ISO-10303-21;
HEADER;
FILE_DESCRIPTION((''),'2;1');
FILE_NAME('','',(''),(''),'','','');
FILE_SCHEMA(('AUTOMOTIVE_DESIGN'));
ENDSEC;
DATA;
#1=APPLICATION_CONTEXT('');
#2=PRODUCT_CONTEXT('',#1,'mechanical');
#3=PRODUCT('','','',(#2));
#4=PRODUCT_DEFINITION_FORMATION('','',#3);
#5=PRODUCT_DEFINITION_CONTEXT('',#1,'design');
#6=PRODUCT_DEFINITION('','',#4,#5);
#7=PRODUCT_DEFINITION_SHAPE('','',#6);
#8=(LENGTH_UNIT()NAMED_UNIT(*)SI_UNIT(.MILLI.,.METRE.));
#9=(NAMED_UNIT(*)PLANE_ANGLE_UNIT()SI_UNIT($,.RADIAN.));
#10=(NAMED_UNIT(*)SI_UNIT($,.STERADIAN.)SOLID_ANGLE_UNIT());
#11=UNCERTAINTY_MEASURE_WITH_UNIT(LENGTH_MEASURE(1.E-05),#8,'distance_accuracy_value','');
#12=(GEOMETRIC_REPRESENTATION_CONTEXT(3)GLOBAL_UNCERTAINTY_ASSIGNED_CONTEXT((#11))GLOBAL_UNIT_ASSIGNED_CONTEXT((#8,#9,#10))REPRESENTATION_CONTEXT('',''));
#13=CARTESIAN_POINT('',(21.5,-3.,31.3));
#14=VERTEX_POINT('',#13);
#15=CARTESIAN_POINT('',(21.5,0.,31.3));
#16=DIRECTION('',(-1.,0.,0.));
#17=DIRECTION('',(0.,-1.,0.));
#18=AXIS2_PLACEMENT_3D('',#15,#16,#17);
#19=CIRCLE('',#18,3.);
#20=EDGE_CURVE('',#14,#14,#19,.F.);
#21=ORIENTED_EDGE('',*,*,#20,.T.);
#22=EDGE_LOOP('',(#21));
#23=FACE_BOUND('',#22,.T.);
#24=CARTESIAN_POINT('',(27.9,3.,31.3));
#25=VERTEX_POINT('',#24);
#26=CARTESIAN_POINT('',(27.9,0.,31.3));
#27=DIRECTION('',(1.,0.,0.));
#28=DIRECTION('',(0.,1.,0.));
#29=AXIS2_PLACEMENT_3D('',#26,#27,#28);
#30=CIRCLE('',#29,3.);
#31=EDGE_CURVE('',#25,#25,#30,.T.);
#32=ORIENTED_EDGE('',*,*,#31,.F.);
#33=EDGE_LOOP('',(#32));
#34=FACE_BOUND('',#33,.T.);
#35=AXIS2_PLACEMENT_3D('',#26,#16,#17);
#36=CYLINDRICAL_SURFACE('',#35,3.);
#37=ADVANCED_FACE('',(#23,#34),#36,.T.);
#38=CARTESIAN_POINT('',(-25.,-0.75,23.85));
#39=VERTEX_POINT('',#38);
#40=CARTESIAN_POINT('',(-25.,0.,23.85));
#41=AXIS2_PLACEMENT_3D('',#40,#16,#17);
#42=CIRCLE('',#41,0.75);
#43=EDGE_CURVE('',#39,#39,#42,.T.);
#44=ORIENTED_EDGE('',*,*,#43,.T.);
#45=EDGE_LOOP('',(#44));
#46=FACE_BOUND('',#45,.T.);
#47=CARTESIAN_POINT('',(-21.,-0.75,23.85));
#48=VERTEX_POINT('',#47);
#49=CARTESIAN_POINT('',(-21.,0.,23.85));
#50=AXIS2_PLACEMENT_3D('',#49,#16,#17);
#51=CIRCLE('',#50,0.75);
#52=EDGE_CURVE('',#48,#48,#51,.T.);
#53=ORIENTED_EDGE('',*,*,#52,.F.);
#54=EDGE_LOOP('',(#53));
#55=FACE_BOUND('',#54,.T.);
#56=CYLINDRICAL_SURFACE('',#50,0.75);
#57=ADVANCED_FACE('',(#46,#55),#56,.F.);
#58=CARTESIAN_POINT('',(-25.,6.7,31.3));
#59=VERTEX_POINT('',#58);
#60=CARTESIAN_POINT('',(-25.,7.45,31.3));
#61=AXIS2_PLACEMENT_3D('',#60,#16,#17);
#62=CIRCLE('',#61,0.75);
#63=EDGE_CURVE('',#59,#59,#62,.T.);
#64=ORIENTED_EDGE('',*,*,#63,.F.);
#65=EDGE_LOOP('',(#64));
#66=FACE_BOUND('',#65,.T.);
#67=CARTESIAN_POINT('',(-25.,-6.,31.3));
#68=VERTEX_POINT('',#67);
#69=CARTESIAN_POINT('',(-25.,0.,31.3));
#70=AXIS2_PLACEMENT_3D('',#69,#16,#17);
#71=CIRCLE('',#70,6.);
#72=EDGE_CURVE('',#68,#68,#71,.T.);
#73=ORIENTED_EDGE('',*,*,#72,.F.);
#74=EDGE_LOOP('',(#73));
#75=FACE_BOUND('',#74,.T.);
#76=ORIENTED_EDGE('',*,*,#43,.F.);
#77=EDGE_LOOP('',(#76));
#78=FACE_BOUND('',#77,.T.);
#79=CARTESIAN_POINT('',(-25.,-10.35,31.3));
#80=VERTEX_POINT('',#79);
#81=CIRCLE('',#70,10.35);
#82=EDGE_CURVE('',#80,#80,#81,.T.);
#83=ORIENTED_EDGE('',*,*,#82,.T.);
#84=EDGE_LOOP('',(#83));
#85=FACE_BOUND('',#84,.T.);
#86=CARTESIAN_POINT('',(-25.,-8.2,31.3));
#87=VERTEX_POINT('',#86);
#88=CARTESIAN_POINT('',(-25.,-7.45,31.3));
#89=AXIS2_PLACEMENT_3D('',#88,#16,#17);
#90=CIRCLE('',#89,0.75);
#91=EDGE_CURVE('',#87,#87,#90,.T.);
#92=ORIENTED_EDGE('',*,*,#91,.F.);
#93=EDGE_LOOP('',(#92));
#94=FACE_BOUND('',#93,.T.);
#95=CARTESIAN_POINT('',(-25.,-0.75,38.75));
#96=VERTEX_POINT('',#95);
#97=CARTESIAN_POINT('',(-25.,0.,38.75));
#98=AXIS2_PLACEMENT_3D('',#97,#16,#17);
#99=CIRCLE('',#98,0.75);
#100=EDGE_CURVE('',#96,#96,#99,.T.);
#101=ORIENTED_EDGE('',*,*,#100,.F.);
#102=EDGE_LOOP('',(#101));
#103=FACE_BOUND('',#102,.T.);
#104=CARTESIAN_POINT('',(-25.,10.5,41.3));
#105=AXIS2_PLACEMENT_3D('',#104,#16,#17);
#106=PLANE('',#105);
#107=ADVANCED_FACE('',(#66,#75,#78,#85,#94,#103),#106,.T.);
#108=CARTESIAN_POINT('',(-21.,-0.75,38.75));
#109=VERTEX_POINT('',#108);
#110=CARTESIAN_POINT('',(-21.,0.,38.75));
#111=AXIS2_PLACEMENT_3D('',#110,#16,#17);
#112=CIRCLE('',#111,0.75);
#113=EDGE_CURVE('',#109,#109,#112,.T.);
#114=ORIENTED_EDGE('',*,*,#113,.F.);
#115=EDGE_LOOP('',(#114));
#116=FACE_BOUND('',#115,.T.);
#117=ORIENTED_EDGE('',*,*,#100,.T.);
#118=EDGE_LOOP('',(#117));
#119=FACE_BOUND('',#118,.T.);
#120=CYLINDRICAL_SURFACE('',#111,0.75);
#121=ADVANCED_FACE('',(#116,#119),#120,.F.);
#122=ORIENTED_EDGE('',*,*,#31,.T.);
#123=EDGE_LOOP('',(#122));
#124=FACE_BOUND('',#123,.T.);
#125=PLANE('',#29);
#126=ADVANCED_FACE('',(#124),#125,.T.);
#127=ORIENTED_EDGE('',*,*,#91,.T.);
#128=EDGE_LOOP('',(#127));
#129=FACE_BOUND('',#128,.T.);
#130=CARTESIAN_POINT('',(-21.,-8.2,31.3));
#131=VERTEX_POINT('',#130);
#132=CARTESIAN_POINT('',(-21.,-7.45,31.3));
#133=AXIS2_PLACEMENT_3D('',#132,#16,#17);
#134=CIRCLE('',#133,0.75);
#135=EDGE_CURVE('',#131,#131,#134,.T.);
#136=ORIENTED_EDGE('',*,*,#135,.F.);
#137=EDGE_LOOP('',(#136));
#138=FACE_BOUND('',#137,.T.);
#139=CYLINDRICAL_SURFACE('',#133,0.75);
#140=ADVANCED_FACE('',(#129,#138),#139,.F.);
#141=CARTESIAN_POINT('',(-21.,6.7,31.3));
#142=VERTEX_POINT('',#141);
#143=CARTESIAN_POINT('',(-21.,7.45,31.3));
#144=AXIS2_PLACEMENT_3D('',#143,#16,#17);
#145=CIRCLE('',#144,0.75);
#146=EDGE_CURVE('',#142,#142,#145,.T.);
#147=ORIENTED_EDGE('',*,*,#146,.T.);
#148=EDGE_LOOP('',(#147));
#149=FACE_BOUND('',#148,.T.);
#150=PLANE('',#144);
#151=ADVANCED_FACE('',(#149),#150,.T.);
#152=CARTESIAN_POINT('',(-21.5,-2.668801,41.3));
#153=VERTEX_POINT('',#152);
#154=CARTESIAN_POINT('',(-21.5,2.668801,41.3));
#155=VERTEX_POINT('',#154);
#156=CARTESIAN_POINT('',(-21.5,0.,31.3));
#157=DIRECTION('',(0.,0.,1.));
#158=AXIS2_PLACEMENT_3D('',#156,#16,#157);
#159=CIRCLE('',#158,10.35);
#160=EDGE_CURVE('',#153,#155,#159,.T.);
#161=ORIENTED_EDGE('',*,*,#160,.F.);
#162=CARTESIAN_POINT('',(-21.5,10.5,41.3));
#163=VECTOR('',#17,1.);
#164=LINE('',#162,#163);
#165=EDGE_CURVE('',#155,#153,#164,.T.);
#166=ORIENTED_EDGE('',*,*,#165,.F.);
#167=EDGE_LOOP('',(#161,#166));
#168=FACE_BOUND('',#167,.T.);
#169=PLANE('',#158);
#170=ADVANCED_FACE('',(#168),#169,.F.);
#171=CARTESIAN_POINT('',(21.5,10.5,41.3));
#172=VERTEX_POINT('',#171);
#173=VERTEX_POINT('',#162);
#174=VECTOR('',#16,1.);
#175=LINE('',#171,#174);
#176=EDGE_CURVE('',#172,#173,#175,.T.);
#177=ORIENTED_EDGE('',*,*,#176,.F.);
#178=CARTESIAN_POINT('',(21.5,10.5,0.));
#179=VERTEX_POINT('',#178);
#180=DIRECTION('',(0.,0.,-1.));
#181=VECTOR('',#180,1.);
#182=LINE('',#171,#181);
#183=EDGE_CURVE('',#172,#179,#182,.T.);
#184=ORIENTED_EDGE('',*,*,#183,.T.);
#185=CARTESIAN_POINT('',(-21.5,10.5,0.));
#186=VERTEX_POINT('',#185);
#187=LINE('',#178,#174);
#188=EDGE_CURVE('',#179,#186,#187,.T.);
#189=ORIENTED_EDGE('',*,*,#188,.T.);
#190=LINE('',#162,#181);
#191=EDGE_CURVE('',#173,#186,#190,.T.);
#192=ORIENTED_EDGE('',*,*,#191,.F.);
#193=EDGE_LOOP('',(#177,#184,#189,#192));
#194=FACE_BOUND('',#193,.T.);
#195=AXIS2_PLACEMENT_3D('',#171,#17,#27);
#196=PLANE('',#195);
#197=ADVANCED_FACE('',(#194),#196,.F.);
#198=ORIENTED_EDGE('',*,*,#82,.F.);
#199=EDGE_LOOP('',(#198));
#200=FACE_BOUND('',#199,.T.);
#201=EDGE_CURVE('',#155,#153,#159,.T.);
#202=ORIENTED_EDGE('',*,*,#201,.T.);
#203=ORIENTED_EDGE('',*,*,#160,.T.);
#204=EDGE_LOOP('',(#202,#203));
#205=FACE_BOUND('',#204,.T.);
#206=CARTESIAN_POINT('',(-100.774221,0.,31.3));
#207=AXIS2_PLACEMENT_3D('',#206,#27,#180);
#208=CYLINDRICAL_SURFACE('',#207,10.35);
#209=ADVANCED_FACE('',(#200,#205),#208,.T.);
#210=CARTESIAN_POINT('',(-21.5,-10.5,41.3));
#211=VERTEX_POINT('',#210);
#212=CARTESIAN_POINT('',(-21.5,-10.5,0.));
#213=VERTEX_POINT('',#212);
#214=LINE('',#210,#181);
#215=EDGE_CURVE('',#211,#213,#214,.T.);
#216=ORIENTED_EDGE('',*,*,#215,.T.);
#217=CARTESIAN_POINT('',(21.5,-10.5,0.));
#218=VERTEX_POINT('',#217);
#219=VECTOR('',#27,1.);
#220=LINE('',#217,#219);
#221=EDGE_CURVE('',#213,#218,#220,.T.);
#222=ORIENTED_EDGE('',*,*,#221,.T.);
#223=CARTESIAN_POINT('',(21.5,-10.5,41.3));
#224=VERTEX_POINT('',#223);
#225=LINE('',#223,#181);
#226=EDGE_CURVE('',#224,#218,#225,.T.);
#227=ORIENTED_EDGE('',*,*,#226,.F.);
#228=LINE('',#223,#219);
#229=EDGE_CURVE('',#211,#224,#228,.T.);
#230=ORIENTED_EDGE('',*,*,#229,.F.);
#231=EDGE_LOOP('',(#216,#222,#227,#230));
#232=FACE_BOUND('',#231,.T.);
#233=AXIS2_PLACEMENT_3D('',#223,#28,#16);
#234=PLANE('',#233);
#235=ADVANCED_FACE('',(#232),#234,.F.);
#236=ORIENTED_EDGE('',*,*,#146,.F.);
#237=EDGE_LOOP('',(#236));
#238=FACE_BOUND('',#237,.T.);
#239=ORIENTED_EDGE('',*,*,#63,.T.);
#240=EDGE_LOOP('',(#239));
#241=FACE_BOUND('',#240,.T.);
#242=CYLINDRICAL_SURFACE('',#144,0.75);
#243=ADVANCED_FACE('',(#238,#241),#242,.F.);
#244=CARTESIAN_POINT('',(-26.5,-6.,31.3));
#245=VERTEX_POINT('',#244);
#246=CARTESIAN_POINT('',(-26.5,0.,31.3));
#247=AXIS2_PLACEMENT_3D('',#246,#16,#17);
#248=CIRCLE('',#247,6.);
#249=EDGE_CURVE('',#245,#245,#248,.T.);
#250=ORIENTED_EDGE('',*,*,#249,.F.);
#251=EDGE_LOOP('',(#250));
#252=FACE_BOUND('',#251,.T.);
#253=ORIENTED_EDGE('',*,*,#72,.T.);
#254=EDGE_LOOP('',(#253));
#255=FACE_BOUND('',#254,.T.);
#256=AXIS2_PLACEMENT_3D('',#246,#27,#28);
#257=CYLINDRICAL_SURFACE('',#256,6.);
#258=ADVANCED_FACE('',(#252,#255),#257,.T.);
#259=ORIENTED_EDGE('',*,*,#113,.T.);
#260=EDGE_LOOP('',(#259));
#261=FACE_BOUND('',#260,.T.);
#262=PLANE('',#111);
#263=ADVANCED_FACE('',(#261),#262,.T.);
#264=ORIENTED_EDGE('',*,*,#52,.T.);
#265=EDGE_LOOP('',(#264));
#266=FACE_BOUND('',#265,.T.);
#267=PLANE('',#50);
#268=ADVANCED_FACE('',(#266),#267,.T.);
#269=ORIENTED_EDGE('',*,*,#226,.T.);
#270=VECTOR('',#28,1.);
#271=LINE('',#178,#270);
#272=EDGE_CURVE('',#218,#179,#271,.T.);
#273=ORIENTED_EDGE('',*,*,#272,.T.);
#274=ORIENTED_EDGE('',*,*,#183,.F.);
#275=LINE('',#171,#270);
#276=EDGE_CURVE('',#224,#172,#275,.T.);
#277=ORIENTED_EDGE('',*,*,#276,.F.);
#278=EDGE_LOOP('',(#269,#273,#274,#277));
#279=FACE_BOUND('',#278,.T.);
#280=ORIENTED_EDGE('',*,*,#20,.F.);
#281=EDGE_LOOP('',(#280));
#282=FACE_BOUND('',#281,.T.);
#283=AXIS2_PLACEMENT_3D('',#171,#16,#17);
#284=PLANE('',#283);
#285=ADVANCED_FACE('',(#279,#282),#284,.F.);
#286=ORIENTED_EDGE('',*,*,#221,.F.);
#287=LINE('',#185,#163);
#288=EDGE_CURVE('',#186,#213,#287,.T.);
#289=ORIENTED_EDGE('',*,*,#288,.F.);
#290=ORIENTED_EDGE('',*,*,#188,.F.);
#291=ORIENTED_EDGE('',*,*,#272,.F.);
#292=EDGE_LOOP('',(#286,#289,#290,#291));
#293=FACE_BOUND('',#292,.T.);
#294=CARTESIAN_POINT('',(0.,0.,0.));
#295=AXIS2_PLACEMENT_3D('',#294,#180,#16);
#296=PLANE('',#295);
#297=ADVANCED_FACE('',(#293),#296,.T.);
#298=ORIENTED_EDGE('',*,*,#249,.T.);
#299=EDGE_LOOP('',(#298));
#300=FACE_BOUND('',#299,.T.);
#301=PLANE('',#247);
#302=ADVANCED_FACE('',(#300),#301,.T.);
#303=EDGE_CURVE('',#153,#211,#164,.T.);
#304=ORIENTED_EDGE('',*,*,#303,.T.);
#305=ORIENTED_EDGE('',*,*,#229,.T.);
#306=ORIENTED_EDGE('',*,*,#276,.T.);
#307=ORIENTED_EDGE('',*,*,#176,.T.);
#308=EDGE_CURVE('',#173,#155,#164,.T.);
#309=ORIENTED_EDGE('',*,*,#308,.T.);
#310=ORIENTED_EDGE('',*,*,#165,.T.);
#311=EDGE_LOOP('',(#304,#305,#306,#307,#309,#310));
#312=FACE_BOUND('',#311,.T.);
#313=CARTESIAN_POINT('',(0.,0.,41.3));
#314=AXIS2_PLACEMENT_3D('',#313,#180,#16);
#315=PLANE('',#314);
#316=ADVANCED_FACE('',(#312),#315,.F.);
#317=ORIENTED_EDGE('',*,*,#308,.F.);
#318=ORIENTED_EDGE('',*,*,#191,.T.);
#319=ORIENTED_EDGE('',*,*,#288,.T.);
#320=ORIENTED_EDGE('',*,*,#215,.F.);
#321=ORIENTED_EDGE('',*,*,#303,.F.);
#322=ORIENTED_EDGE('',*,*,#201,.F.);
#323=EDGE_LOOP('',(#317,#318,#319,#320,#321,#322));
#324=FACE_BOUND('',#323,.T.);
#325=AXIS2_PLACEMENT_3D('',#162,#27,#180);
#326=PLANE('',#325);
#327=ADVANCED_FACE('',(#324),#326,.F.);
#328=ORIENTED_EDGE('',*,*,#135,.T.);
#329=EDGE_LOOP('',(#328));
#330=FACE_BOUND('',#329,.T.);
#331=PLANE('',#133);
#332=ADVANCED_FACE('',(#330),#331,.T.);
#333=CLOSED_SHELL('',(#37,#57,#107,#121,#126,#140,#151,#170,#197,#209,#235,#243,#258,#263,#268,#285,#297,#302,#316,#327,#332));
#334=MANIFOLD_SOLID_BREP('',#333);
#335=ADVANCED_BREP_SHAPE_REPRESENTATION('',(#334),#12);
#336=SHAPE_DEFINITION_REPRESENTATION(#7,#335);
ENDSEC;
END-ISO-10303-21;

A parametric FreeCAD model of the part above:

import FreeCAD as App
import Part
import Sketcher

V = App.Vector


def add_polygon(sketch, points):
    """Adds a closed chain of lines whose ends are joined by coincident constraints."""
    first, n = sketch.GeometryCount, len(points)
    for a, b in zip(points, points[1:] + points[:1]):
        sketch.addGeometry(Part.LineSegment(App.Vector(*a, 0), App.Vector(*b, 0)), False)
    for i in range(n):
        sketch.addConstraint(Sketcher.Constraint("Coincident", first + i, 2, first + (i + 1) % n, 1))

doc = App.newDocument("Part")
body = doc.addObject("PartDesign::Body", "Body")

sketch1 = doc.addObject("Sketcher::SketchObject", "Sketch")
body.addObject(sketch1)
sketch1.AttachmentSupport = (doc.XY_Plane, [""])
sketch1.MapMode = "FlatFace"
add_polygon(sketch1, [(-22, 10), (-22, -10), (22, -10), (22, 10)])
sketch1.addConstraint([
    Sketcher.Constraint("Vertical", 0),
    Sketcher.Constraint("Horizontal", 1),
    Sketcher.Constraint("Vertical", 2),
    Sketcher.Constraint("Horizontal", 3),
    Sketcher.Constraint("Symmetric", 0, 2, 2, 2, -1, 1),
    Sketcher.Constraint("DistanceX", 1, 1, 1, 2, 43.0),
    Sketcher.Constraint("DistanceY", 0, 2, 0, 1, 21.0),
])
pad1 = doc.addObject("PartDesign::Pad", "Pad")
body.addObject(pad1)
pad1.Profile = sketch1
pad1.Length = 41.3

sketch2 = doc.addObject("Sketcher::SketchObject", "Sketch001")
body.addObject(sketch2)
sketch2.AttachmentSupport = (doc.YZ_Plane, [""])
sketch2.MapMode = "FlatFace"
sketch2.AttachmentOffset = App.Placement(V(0, 0, 21.5), App.Rotation())
sketch2.addGeometry(Part.Circle(V(0, 31.3, 0), V(0, 0, 1), 3), False)
sketch2.addConstraint([
    Sketcher.Constraint("PointOnObject", 0, 3, -2),
    Sketcher.Constraint("Diameter", 0, 6.0),
    Sketcher.Constraint("DistanceY", -1, 1, 0, 3, 31.3),
])
pad2 = doc.addObject("PartDesign::Pad", "Pad001")
body.addObject(pad2)
pad2.Profile = sketch2
pad2.Length = 6.4

sketch3 = doc.addObject("Sketcher::SketchObject", "Sketch002")
body.addObject(sketch3)
sketch3.AttachmentSupport = (doc.YZ_Plane, [""])
sketch3.MapMode = "FlatFace"
sketch3.AttachmentOffset = App.Placement(V(0, 0, -21.5), App.Rotation())
sketch3.addGeometry(Part.Circle(V(0, 31, 0), V(0, 0, 1), 10), False)
sketch3.addConstraint([
    Sketcher.Constraint("PointOnObject", 0, 3, -2),
    Sketcher.Constraint("Diameter", 0, 20.7),
    Sketcher.Constraint("DistanceY", -1, 1, 0, 3, 31.3),
])
pad3 = doc.addObject("PartDesign::Pad", "Pad002")
body.addObject(pad3)
pad3.Profile = sketch3
pad3.Length = 3.5
pad3.Reversed = True

sketch4 = doc.addObject("Sketcher::SketchObject", "Sketch003")
body.addObject(sketch4)
sketch4.AttachmentSupport = (doc.YZ_Plane, [""])
sketch4.MapMode = "FlatFace"
sketch4.AttachmentOffset = App.Placement(V(0, 0, -25), App.Rotation())
sketch4.addGeometry(Part.Circle(V(0, 31, 0), V(0, 0, 1), 6), False)
sketch4.addConstraint([
    Sketcher.Constraint("PointOnObject", 0, 3, -2),
    Sketcher.Constraint("Diameter", 0, 12.0),
    Sketcher.Constraint("DistanceY", -1, 1, 0, 3, 31.3),
])
pad4 = doc.addObject("PartDesign::Pad", "Pad003")
body.addObject(pad4)
pad4.Profile = sketch4
pad4.Length = 1.5
pad4.Reversed = True

sketch5 = doc.addObject("Sketcher::SketchObject", "Sketch004")
body.addObject(sketch5)
sketch5.AttachmentSupport = (doc.YZ_Plane, [""])
sketch5.MapMode = "FlatFace"
sketch5.AttachmentOffset = App.Placement(V(0, 0, -25), App.Rotation())
sketch5.addGeometry([
    Part.Circle(V(0, 38.8, 0), V(0, 0, 1), 0.8),
    Part.Circle(V(-7.5, 31.3, 0), V(0, 0, 1), 0.8),
    Part.Circle(V(0, 23.9, 0), V(0, 0, 1), 0.8),
    Part.Circle(V(7.5, 31.3, 0), V(0, 0, 1), 0.8),
], False)
sketch5.addConstraint([
    Sketcher.Constraint("Equal", 0, 1),
    Sketcher.Constraint("Equal", 1, 2),
    Sketcher.Constraint("Equal", 2, 3),
    Sketcher.Constraint("Symmetric", 1, 3, 3, 3, -2),
    Sketcher.Constraint("PointOnObject", 0, 3, -2),
    Sketcher.Constraint("PointOnObject", 2, 3, -2),
    Sketcher.Constraint("Diameter", 0, 1.5),
    Sketcher.Constraint("DistanceY", -1, 1, 1, 3, 31.3),
    Sketcher.Constraint("DistanceY", 2, 3, 0, 3, 14.9),
    Sketcher.Constraint("DistanceX", 1, 3, 3, 3, 14.9),
    Sketcher.Constraint("DistanceY", -1, 1, 0, 3, 38.75),
])
pocket1 = doc.addObject("PartDesign::Pocket", "Pocket")
body.addObject(pocket1)
pocket1.Profile = sketch5
pocket1.Length = 4
pocket1.Reversed = True

doc.recompute()
